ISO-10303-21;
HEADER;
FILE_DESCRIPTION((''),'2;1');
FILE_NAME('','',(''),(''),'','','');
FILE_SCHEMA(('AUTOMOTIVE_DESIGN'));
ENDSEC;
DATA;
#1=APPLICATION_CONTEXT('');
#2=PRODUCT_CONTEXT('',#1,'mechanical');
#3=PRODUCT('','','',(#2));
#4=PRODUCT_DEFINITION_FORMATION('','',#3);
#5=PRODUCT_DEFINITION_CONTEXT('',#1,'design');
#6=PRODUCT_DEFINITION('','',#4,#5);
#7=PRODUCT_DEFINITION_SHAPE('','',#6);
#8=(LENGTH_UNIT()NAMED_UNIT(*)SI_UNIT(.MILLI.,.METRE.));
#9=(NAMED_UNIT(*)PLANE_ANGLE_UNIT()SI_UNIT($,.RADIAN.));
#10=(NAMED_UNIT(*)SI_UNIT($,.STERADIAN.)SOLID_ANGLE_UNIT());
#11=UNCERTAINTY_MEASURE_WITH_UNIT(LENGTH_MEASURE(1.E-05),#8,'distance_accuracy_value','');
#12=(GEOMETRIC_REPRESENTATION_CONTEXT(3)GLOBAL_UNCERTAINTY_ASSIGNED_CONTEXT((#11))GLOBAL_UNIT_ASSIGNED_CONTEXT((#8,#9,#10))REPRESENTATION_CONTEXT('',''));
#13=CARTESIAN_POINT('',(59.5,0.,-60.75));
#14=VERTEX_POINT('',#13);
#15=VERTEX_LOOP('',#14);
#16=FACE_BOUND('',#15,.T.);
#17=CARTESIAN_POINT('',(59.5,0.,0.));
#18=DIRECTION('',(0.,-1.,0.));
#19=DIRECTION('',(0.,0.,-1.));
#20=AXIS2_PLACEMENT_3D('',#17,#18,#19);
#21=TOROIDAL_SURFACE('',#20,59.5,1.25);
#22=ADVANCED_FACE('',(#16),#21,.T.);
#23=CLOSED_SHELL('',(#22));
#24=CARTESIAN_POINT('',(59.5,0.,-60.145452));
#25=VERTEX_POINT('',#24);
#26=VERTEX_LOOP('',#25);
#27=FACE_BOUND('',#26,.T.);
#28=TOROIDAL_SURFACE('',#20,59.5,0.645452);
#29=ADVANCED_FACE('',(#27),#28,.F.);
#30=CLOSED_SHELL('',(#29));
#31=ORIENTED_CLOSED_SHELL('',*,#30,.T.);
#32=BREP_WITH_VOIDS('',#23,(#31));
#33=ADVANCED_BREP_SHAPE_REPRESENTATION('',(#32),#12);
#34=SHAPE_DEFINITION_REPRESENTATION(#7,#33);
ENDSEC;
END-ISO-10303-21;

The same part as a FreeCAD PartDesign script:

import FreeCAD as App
import Part
import Sketcher
from FreeCAD import Vector

doc = App.newDocument("Part")
body = doc.addObject("PartDesign::Body", "Body")

# Sketch on XY plane
sketch1 = doc.addObject("Sketcher::SketchObject", "Sketch")
body.addObject(sketch1)
sketch1.AttachmentSupport = (doc.XY_Plane, [""])
sketch1.MapMode = "FlatFace"
sketch1.addGeometry([
    Part.Circle(Vector(0, 0, 0), Vector(0, 0, 1), 1.2),
    Part.Circle(Vector(0, 0, 0), Vector(0, 0, 1), 0.6),
], False)
sketch1.addGeometry(Part.LineSegment(Vector(59.5, 0, 0), Vector(59.5, 10, 0)), True)  # axis
sketch1.addConstraint([
    Sketcher.Constraint("Vertical", 2),
    Sketcher.Constraint("Coincident", 0, 3, -1, 1),
    Sketcher.Constraint("Coincident", 1, 3, -1, 1),
    Sketcher.Constraint("PointOnObject", 2, 1, -1),
    Sketcher.Constraint("Diameter", 0, 2.5),
    Sketcher.Constraint("DistanceY", 2, 1, 2, 2, 10.0),
    Sketcher.Constraint("DistanceX", -1, 1, 2, 1, 59.5),
    Sketcher.Constraint("Diameter", 1, 1.290903),
])
revolution = doc.addObject("PartDesign::Revolution", "Revolution")
body.addObject(revolution)
revolution.Profile = sketch1
revolution.ReferenceAxis = (sketch1, ["Axis0"])
revolution.Angle = 360

doc.recompute()
